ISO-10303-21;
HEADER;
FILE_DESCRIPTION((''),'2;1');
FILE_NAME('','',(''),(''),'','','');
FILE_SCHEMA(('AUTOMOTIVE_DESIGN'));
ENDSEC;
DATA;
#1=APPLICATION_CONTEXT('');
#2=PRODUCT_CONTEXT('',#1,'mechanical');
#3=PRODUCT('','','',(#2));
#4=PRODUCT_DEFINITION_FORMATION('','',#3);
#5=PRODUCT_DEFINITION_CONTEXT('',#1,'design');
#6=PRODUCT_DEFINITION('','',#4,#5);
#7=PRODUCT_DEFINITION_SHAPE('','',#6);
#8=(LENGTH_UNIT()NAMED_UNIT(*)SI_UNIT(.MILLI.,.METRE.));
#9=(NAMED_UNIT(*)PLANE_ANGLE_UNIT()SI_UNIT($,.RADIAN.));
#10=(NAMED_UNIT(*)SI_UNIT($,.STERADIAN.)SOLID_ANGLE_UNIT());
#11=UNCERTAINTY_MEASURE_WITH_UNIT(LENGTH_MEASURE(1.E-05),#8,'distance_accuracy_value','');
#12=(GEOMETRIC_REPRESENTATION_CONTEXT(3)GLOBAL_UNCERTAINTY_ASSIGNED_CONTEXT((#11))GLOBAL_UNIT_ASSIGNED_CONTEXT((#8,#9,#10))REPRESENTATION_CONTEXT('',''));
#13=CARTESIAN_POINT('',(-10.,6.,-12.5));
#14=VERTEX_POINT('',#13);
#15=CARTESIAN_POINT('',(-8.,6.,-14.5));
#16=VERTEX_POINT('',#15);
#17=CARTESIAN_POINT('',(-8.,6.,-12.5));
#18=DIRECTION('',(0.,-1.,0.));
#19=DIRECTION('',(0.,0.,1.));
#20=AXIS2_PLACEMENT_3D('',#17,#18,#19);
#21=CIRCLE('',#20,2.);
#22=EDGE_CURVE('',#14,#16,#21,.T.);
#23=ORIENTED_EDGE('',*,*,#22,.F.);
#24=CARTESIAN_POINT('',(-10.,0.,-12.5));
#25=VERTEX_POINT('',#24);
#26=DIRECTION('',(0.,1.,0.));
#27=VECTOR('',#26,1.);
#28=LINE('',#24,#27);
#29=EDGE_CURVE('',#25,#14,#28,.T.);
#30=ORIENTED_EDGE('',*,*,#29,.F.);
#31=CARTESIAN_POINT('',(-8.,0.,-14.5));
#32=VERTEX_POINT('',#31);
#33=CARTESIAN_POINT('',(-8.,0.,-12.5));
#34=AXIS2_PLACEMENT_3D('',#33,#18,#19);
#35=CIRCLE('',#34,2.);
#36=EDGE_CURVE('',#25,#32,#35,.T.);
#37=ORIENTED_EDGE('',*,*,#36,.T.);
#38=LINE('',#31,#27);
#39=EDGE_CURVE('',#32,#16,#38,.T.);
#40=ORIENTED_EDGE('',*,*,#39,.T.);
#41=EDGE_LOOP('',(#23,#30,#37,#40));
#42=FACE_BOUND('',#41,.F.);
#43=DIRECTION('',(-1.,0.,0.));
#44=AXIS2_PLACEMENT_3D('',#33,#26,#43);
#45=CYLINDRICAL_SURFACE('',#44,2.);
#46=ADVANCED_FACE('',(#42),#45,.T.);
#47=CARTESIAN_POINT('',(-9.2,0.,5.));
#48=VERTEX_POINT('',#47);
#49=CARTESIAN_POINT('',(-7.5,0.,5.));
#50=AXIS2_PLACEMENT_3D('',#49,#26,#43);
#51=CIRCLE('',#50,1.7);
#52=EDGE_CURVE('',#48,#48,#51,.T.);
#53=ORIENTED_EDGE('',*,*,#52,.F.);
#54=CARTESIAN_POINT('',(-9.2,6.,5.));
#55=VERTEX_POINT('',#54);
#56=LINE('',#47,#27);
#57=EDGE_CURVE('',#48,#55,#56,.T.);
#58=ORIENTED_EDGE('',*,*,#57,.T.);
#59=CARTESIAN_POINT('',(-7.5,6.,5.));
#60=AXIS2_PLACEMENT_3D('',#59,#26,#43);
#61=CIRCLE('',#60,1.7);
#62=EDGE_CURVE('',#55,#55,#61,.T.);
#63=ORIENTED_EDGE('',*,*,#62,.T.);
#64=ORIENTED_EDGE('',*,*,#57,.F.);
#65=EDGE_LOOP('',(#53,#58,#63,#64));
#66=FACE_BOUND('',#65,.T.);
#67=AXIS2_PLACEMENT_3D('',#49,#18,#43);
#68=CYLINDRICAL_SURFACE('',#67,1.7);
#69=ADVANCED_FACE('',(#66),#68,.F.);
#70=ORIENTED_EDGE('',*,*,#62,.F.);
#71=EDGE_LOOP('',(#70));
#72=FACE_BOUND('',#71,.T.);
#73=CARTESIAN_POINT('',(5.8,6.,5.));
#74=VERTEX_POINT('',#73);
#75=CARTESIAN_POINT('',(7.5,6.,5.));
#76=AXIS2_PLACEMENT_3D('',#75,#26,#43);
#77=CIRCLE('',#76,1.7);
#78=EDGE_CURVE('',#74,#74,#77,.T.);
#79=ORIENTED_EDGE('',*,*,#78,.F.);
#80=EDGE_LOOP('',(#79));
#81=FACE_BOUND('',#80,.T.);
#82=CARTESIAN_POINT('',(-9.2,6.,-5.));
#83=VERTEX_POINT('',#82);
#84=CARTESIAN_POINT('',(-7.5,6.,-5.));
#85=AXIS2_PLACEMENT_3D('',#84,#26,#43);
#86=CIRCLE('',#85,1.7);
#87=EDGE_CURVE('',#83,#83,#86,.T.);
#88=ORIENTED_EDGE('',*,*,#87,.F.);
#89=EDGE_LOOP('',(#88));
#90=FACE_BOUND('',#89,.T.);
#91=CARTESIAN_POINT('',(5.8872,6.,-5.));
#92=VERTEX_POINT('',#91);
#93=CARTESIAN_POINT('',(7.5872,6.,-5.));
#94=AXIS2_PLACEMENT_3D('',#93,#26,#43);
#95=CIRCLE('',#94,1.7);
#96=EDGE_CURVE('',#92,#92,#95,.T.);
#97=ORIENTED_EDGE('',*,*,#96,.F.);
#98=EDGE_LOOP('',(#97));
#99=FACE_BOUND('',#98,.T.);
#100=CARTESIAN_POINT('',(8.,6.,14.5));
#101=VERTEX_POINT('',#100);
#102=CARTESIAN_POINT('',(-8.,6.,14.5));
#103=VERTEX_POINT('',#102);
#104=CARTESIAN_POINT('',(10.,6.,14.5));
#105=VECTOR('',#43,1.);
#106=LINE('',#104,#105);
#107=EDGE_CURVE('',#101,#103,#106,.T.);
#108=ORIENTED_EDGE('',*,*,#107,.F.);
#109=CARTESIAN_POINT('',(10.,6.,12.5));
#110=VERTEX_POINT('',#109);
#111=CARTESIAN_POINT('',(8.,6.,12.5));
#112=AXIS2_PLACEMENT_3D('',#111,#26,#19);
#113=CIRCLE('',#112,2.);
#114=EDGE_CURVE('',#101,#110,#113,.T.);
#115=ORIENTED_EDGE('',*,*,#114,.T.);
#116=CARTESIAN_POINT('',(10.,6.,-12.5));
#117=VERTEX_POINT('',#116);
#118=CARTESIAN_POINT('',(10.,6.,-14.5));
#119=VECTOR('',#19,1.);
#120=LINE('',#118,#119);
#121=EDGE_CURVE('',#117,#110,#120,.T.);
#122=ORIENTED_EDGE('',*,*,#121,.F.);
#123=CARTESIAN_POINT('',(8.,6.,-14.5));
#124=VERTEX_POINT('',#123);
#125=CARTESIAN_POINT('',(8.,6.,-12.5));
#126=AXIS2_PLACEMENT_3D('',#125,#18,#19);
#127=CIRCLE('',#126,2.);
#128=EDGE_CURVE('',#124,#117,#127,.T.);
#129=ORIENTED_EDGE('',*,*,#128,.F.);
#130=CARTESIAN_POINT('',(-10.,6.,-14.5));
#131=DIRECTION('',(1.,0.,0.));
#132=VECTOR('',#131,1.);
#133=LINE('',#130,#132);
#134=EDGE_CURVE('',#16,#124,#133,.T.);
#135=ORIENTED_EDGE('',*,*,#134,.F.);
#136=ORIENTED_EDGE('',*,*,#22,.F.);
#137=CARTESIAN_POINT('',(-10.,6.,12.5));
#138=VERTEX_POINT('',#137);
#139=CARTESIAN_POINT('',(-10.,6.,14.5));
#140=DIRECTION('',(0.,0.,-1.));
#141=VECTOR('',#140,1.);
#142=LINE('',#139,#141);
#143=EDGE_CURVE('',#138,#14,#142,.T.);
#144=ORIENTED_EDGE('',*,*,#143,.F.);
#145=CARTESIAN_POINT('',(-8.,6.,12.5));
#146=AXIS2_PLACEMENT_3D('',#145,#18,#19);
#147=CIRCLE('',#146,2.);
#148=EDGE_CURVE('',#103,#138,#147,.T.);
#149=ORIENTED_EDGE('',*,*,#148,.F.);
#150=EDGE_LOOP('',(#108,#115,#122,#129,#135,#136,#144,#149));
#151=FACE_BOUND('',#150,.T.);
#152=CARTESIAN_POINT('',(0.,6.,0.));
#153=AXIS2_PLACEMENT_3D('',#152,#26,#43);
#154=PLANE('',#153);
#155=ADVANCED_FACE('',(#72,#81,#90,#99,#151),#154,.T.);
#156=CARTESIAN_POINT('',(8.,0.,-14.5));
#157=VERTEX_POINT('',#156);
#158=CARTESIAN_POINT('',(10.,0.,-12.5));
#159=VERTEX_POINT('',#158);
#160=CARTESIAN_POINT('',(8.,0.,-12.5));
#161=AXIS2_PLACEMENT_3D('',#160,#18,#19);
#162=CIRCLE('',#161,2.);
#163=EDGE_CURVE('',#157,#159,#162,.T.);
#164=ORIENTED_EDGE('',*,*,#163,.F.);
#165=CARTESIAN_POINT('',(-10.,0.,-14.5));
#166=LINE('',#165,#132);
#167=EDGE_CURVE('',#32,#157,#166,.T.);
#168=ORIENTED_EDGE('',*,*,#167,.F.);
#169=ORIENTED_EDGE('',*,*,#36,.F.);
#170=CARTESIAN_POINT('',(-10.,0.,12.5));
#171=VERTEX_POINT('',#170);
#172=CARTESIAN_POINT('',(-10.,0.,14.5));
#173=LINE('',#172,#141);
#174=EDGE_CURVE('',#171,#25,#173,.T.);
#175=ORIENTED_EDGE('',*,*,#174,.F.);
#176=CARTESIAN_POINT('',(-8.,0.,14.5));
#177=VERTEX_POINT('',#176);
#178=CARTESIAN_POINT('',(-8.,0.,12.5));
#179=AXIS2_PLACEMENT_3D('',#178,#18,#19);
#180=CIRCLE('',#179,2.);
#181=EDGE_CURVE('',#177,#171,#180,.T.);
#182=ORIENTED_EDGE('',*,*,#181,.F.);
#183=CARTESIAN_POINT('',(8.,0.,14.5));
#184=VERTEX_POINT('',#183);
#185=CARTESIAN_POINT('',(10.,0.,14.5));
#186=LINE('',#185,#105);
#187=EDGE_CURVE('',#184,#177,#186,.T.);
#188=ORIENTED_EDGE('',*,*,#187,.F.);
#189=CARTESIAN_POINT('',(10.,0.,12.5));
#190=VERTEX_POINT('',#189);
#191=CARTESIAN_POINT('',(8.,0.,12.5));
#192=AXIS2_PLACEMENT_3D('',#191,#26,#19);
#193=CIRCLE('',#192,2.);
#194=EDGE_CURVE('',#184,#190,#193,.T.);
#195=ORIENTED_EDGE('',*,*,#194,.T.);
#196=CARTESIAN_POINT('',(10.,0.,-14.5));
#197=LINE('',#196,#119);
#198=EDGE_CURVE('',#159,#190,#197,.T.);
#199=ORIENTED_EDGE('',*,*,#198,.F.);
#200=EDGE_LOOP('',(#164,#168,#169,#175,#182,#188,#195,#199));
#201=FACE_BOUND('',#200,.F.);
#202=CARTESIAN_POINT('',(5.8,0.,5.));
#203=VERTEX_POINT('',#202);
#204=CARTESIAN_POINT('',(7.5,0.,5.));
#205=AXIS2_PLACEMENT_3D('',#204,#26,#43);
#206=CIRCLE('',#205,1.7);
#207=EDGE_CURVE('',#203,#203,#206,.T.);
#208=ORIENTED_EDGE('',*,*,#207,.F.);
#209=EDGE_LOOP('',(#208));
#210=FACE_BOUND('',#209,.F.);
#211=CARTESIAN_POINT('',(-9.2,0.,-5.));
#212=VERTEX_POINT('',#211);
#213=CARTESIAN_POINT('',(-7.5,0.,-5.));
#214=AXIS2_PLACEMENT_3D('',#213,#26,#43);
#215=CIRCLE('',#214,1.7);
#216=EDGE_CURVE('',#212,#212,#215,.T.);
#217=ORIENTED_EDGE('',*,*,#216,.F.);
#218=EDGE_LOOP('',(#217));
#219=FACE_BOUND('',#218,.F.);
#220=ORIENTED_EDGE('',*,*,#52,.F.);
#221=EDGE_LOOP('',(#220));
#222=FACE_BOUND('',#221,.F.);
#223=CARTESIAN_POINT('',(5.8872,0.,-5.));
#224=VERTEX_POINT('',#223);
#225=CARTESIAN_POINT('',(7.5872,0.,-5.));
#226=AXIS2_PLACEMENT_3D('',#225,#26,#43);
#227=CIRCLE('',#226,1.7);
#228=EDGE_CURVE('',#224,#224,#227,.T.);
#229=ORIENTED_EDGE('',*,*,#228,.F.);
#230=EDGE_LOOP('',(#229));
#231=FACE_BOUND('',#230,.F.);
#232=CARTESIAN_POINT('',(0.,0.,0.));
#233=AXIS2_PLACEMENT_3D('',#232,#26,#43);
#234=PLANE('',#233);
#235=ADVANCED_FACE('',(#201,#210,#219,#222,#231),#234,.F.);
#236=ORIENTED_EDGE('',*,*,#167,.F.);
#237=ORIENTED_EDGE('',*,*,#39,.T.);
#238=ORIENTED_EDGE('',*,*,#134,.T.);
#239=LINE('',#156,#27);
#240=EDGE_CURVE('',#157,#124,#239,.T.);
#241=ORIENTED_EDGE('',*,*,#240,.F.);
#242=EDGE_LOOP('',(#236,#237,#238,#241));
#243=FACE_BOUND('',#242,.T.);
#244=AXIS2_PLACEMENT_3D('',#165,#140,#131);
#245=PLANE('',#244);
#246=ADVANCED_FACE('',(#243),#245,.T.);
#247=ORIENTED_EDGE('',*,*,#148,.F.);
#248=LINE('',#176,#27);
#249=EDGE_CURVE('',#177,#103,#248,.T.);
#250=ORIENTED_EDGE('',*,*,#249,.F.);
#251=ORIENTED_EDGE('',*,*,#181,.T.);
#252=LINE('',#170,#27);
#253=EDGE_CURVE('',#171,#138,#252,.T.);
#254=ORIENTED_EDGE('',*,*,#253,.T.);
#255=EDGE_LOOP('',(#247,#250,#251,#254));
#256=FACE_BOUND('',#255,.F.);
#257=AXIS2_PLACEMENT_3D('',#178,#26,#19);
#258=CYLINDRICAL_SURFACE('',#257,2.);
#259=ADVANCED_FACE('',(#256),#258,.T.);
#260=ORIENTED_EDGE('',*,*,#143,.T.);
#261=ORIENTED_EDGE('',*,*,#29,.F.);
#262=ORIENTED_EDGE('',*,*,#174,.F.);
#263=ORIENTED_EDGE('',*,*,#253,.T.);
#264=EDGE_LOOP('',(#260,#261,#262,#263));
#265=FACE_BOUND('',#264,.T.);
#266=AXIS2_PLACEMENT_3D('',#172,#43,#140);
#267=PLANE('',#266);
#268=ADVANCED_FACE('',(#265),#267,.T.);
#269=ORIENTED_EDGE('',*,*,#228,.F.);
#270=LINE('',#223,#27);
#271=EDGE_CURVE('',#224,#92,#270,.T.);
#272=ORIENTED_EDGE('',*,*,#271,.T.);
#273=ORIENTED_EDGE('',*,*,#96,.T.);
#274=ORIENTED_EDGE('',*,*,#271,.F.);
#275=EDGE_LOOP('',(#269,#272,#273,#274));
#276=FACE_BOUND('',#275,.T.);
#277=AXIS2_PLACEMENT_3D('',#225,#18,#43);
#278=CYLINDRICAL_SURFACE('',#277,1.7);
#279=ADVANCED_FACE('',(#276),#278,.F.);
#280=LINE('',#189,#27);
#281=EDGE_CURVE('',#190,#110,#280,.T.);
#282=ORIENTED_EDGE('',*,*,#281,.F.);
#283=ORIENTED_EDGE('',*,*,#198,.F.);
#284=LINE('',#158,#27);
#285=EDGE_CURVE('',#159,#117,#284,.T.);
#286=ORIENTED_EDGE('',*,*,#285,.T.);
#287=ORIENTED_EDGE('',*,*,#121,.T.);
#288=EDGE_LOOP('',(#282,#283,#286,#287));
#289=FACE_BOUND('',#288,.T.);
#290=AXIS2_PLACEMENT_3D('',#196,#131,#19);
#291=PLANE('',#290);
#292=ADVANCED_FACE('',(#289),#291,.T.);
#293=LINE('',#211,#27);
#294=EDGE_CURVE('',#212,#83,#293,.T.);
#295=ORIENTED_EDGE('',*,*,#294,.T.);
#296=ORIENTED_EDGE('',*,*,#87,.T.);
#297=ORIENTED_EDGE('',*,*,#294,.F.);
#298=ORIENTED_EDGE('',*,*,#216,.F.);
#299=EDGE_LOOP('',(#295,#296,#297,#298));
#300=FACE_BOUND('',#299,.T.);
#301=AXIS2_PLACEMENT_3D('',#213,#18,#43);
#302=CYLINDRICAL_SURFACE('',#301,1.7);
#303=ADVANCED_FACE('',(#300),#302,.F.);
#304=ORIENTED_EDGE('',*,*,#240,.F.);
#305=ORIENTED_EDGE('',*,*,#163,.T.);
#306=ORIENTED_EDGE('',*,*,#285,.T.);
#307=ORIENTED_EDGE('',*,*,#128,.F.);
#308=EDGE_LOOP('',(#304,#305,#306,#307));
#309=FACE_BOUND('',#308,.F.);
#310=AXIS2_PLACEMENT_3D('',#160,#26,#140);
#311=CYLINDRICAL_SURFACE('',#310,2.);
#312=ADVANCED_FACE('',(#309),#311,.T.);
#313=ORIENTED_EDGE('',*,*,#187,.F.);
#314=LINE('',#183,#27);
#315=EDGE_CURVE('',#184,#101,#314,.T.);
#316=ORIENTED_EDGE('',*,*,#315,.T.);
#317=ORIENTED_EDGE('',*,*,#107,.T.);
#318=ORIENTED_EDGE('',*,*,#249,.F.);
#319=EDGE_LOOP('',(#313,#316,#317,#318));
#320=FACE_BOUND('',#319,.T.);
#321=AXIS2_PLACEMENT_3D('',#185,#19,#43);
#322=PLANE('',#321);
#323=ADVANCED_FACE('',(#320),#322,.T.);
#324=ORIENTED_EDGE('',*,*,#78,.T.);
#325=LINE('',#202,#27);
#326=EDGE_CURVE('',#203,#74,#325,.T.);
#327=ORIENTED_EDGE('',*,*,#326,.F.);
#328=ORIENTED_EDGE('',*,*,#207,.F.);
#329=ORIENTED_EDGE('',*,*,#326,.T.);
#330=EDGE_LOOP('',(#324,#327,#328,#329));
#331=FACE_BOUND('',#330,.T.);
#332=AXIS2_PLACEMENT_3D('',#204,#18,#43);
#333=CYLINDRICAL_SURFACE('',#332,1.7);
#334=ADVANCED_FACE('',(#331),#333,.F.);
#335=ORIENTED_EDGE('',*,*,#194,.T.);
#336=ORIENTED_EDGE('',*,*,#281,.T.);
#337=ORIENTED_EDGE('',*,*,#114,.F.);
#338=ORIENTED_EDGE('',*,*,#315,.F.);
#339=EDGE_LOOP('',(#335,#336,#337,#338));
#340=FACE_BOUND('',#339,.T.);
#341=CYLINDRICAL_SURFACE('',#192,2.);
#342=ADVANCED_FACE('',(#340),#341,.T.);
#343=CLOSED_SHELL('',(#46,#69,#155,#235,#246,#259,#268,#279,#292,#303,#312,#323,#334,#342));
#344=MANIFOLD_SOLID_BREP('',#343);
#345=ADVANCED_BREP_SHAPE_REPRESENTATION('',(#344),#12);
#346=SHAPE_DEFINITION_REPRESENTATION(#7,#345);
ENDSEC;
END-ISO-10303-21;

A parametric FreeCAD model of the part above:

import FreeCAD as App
import Part
import Sketcher


def edges_at(feature, points):
    """Names of the edges that pass closest to the given points."""
    edges = feature.Shape.Edges
    near = lambda p: min(range(len(edges)), key=lambda i: edges[i].distToShape(Part.Vertex(*p))[0])
    return sorted({f"Edge{near(p) + 1}" for p in points})

doc = App.newDocument("Part")
body = doc.addObject("PartDesign::Body", "Body")

# Sketch on XZ plane
sketch1 = doc.addObject("Sketcher::SketchObject", "Sketch")
body.addObject(sketch1)
sketch1.AttachmentSupport = (doc.XZ_Plane, [""])
sketch1.MapMode = "FlatFace"
sketch1.addGeometry([
    Part.LineSegment(App.Vector(-10, 14.5, 0), App.Vector(10, 14.5, 0)),  # 0
    Part.LineSegment(App.Vector(10, 14.5, 0), App.Vector(10, -14.5, 0)),  # 1
    Part.LineSegment(App.Vector(10, -14.5, 0), App.Vector(-10, -14.5, 0)),  # 2
    Part.LineSegment(App.Vector(-10, -14.5, 0), App.Vector(-10, 14.5, 0)),  # 3
    Part.Circle(App.Vector(7.6, -5, 0), App.Vector(0, 0, 1), 1.7),  # 4
    Part.Circle(App.Vector(-7.5, -5, 0), App.Vector(0, 0, 1), 1.7),  # 5
    Part.Circle(App.Vector(7.5, 5, 0), App.Vector(0, 0, 1), 1.7),  # 6
    Part.Circle(App.Vector(-7.5, 5, 0), App.Vector(0, 0, 1), 1.7),  # 7
], False)
sketch1.addConstraint([
    Sketcher.Constraint("Coincident", 0, 2, 1, 1),
    Sketcher.Constraint("Coincident", 1, 2, 2, 1),
    Sketcher.Constraint("Coincident", 2, 2, 3, 1),
    Sketcher.Constraint("Coincident", 3, 2, 0, 1),
    Sketcher.Constraint("Horizontal", 0),
    Sketcher.Constraint("Vertical", 1),
    Sketcher.Constraint("Horizontal", 2),
    Sketcher.Constraint("Vertical", 3),
    Sketcher.Constraint("Equal", 4, 5),
    Sketcher.Constraint("Equal", 5, 6),
    Sketcher.Constraint("Equal", 6, 7),
    Sketcher.Constraint("Symmetric", 5, 3, 6, 3, -1, 1),
    Sketcher.Constraint("Symmetric", 0, 2, 2, 2, -1, 1),
    Sketcher.Constraint("Symmetric", 6, 3, 7, 3, -2),
    Sketcher.Constraint("Horizontal", 4, 3, 5, 3),
    Sketcher.Constraint("Diameter", 4, 3.4),
    Sketcher.Constraint("DistanceX", 0, 1, 0, 2, 20.0),
    Sketcher.Constraint("DistanceY", 1, 2, 1, 1, 29.0),
    Sketcher.Constraint("DistanceY", 4, 3, 6, 3, 10.0),
    Sketcher.Constraint("DistanceX", 5, 3, 6, 3, 15.0),
    Sketcher.Constraint("DistanceX", -1, 1, 4, 3, 7.5872),
])
pad1 = doc.addObject("PartDesign::Pad", "Pad")
body.addObject(pad1)
pad1.Profile = sketch1
pad1.Length = 6
pad1.Reversed = True
doc.recompute()

fillet = doc.addObject("PartDesign::Fillet", "Fillet")
body.addObject(fillet)
fillet.Base = (pad1, edges_at(pad1, [
    (10, 3, -14.5),
    (-10, 3, -14.5),
    (-10, 3, 14.5),
    (10, 3, 14.5),
]))
fillet.Radius = 2

doc.recompute()
